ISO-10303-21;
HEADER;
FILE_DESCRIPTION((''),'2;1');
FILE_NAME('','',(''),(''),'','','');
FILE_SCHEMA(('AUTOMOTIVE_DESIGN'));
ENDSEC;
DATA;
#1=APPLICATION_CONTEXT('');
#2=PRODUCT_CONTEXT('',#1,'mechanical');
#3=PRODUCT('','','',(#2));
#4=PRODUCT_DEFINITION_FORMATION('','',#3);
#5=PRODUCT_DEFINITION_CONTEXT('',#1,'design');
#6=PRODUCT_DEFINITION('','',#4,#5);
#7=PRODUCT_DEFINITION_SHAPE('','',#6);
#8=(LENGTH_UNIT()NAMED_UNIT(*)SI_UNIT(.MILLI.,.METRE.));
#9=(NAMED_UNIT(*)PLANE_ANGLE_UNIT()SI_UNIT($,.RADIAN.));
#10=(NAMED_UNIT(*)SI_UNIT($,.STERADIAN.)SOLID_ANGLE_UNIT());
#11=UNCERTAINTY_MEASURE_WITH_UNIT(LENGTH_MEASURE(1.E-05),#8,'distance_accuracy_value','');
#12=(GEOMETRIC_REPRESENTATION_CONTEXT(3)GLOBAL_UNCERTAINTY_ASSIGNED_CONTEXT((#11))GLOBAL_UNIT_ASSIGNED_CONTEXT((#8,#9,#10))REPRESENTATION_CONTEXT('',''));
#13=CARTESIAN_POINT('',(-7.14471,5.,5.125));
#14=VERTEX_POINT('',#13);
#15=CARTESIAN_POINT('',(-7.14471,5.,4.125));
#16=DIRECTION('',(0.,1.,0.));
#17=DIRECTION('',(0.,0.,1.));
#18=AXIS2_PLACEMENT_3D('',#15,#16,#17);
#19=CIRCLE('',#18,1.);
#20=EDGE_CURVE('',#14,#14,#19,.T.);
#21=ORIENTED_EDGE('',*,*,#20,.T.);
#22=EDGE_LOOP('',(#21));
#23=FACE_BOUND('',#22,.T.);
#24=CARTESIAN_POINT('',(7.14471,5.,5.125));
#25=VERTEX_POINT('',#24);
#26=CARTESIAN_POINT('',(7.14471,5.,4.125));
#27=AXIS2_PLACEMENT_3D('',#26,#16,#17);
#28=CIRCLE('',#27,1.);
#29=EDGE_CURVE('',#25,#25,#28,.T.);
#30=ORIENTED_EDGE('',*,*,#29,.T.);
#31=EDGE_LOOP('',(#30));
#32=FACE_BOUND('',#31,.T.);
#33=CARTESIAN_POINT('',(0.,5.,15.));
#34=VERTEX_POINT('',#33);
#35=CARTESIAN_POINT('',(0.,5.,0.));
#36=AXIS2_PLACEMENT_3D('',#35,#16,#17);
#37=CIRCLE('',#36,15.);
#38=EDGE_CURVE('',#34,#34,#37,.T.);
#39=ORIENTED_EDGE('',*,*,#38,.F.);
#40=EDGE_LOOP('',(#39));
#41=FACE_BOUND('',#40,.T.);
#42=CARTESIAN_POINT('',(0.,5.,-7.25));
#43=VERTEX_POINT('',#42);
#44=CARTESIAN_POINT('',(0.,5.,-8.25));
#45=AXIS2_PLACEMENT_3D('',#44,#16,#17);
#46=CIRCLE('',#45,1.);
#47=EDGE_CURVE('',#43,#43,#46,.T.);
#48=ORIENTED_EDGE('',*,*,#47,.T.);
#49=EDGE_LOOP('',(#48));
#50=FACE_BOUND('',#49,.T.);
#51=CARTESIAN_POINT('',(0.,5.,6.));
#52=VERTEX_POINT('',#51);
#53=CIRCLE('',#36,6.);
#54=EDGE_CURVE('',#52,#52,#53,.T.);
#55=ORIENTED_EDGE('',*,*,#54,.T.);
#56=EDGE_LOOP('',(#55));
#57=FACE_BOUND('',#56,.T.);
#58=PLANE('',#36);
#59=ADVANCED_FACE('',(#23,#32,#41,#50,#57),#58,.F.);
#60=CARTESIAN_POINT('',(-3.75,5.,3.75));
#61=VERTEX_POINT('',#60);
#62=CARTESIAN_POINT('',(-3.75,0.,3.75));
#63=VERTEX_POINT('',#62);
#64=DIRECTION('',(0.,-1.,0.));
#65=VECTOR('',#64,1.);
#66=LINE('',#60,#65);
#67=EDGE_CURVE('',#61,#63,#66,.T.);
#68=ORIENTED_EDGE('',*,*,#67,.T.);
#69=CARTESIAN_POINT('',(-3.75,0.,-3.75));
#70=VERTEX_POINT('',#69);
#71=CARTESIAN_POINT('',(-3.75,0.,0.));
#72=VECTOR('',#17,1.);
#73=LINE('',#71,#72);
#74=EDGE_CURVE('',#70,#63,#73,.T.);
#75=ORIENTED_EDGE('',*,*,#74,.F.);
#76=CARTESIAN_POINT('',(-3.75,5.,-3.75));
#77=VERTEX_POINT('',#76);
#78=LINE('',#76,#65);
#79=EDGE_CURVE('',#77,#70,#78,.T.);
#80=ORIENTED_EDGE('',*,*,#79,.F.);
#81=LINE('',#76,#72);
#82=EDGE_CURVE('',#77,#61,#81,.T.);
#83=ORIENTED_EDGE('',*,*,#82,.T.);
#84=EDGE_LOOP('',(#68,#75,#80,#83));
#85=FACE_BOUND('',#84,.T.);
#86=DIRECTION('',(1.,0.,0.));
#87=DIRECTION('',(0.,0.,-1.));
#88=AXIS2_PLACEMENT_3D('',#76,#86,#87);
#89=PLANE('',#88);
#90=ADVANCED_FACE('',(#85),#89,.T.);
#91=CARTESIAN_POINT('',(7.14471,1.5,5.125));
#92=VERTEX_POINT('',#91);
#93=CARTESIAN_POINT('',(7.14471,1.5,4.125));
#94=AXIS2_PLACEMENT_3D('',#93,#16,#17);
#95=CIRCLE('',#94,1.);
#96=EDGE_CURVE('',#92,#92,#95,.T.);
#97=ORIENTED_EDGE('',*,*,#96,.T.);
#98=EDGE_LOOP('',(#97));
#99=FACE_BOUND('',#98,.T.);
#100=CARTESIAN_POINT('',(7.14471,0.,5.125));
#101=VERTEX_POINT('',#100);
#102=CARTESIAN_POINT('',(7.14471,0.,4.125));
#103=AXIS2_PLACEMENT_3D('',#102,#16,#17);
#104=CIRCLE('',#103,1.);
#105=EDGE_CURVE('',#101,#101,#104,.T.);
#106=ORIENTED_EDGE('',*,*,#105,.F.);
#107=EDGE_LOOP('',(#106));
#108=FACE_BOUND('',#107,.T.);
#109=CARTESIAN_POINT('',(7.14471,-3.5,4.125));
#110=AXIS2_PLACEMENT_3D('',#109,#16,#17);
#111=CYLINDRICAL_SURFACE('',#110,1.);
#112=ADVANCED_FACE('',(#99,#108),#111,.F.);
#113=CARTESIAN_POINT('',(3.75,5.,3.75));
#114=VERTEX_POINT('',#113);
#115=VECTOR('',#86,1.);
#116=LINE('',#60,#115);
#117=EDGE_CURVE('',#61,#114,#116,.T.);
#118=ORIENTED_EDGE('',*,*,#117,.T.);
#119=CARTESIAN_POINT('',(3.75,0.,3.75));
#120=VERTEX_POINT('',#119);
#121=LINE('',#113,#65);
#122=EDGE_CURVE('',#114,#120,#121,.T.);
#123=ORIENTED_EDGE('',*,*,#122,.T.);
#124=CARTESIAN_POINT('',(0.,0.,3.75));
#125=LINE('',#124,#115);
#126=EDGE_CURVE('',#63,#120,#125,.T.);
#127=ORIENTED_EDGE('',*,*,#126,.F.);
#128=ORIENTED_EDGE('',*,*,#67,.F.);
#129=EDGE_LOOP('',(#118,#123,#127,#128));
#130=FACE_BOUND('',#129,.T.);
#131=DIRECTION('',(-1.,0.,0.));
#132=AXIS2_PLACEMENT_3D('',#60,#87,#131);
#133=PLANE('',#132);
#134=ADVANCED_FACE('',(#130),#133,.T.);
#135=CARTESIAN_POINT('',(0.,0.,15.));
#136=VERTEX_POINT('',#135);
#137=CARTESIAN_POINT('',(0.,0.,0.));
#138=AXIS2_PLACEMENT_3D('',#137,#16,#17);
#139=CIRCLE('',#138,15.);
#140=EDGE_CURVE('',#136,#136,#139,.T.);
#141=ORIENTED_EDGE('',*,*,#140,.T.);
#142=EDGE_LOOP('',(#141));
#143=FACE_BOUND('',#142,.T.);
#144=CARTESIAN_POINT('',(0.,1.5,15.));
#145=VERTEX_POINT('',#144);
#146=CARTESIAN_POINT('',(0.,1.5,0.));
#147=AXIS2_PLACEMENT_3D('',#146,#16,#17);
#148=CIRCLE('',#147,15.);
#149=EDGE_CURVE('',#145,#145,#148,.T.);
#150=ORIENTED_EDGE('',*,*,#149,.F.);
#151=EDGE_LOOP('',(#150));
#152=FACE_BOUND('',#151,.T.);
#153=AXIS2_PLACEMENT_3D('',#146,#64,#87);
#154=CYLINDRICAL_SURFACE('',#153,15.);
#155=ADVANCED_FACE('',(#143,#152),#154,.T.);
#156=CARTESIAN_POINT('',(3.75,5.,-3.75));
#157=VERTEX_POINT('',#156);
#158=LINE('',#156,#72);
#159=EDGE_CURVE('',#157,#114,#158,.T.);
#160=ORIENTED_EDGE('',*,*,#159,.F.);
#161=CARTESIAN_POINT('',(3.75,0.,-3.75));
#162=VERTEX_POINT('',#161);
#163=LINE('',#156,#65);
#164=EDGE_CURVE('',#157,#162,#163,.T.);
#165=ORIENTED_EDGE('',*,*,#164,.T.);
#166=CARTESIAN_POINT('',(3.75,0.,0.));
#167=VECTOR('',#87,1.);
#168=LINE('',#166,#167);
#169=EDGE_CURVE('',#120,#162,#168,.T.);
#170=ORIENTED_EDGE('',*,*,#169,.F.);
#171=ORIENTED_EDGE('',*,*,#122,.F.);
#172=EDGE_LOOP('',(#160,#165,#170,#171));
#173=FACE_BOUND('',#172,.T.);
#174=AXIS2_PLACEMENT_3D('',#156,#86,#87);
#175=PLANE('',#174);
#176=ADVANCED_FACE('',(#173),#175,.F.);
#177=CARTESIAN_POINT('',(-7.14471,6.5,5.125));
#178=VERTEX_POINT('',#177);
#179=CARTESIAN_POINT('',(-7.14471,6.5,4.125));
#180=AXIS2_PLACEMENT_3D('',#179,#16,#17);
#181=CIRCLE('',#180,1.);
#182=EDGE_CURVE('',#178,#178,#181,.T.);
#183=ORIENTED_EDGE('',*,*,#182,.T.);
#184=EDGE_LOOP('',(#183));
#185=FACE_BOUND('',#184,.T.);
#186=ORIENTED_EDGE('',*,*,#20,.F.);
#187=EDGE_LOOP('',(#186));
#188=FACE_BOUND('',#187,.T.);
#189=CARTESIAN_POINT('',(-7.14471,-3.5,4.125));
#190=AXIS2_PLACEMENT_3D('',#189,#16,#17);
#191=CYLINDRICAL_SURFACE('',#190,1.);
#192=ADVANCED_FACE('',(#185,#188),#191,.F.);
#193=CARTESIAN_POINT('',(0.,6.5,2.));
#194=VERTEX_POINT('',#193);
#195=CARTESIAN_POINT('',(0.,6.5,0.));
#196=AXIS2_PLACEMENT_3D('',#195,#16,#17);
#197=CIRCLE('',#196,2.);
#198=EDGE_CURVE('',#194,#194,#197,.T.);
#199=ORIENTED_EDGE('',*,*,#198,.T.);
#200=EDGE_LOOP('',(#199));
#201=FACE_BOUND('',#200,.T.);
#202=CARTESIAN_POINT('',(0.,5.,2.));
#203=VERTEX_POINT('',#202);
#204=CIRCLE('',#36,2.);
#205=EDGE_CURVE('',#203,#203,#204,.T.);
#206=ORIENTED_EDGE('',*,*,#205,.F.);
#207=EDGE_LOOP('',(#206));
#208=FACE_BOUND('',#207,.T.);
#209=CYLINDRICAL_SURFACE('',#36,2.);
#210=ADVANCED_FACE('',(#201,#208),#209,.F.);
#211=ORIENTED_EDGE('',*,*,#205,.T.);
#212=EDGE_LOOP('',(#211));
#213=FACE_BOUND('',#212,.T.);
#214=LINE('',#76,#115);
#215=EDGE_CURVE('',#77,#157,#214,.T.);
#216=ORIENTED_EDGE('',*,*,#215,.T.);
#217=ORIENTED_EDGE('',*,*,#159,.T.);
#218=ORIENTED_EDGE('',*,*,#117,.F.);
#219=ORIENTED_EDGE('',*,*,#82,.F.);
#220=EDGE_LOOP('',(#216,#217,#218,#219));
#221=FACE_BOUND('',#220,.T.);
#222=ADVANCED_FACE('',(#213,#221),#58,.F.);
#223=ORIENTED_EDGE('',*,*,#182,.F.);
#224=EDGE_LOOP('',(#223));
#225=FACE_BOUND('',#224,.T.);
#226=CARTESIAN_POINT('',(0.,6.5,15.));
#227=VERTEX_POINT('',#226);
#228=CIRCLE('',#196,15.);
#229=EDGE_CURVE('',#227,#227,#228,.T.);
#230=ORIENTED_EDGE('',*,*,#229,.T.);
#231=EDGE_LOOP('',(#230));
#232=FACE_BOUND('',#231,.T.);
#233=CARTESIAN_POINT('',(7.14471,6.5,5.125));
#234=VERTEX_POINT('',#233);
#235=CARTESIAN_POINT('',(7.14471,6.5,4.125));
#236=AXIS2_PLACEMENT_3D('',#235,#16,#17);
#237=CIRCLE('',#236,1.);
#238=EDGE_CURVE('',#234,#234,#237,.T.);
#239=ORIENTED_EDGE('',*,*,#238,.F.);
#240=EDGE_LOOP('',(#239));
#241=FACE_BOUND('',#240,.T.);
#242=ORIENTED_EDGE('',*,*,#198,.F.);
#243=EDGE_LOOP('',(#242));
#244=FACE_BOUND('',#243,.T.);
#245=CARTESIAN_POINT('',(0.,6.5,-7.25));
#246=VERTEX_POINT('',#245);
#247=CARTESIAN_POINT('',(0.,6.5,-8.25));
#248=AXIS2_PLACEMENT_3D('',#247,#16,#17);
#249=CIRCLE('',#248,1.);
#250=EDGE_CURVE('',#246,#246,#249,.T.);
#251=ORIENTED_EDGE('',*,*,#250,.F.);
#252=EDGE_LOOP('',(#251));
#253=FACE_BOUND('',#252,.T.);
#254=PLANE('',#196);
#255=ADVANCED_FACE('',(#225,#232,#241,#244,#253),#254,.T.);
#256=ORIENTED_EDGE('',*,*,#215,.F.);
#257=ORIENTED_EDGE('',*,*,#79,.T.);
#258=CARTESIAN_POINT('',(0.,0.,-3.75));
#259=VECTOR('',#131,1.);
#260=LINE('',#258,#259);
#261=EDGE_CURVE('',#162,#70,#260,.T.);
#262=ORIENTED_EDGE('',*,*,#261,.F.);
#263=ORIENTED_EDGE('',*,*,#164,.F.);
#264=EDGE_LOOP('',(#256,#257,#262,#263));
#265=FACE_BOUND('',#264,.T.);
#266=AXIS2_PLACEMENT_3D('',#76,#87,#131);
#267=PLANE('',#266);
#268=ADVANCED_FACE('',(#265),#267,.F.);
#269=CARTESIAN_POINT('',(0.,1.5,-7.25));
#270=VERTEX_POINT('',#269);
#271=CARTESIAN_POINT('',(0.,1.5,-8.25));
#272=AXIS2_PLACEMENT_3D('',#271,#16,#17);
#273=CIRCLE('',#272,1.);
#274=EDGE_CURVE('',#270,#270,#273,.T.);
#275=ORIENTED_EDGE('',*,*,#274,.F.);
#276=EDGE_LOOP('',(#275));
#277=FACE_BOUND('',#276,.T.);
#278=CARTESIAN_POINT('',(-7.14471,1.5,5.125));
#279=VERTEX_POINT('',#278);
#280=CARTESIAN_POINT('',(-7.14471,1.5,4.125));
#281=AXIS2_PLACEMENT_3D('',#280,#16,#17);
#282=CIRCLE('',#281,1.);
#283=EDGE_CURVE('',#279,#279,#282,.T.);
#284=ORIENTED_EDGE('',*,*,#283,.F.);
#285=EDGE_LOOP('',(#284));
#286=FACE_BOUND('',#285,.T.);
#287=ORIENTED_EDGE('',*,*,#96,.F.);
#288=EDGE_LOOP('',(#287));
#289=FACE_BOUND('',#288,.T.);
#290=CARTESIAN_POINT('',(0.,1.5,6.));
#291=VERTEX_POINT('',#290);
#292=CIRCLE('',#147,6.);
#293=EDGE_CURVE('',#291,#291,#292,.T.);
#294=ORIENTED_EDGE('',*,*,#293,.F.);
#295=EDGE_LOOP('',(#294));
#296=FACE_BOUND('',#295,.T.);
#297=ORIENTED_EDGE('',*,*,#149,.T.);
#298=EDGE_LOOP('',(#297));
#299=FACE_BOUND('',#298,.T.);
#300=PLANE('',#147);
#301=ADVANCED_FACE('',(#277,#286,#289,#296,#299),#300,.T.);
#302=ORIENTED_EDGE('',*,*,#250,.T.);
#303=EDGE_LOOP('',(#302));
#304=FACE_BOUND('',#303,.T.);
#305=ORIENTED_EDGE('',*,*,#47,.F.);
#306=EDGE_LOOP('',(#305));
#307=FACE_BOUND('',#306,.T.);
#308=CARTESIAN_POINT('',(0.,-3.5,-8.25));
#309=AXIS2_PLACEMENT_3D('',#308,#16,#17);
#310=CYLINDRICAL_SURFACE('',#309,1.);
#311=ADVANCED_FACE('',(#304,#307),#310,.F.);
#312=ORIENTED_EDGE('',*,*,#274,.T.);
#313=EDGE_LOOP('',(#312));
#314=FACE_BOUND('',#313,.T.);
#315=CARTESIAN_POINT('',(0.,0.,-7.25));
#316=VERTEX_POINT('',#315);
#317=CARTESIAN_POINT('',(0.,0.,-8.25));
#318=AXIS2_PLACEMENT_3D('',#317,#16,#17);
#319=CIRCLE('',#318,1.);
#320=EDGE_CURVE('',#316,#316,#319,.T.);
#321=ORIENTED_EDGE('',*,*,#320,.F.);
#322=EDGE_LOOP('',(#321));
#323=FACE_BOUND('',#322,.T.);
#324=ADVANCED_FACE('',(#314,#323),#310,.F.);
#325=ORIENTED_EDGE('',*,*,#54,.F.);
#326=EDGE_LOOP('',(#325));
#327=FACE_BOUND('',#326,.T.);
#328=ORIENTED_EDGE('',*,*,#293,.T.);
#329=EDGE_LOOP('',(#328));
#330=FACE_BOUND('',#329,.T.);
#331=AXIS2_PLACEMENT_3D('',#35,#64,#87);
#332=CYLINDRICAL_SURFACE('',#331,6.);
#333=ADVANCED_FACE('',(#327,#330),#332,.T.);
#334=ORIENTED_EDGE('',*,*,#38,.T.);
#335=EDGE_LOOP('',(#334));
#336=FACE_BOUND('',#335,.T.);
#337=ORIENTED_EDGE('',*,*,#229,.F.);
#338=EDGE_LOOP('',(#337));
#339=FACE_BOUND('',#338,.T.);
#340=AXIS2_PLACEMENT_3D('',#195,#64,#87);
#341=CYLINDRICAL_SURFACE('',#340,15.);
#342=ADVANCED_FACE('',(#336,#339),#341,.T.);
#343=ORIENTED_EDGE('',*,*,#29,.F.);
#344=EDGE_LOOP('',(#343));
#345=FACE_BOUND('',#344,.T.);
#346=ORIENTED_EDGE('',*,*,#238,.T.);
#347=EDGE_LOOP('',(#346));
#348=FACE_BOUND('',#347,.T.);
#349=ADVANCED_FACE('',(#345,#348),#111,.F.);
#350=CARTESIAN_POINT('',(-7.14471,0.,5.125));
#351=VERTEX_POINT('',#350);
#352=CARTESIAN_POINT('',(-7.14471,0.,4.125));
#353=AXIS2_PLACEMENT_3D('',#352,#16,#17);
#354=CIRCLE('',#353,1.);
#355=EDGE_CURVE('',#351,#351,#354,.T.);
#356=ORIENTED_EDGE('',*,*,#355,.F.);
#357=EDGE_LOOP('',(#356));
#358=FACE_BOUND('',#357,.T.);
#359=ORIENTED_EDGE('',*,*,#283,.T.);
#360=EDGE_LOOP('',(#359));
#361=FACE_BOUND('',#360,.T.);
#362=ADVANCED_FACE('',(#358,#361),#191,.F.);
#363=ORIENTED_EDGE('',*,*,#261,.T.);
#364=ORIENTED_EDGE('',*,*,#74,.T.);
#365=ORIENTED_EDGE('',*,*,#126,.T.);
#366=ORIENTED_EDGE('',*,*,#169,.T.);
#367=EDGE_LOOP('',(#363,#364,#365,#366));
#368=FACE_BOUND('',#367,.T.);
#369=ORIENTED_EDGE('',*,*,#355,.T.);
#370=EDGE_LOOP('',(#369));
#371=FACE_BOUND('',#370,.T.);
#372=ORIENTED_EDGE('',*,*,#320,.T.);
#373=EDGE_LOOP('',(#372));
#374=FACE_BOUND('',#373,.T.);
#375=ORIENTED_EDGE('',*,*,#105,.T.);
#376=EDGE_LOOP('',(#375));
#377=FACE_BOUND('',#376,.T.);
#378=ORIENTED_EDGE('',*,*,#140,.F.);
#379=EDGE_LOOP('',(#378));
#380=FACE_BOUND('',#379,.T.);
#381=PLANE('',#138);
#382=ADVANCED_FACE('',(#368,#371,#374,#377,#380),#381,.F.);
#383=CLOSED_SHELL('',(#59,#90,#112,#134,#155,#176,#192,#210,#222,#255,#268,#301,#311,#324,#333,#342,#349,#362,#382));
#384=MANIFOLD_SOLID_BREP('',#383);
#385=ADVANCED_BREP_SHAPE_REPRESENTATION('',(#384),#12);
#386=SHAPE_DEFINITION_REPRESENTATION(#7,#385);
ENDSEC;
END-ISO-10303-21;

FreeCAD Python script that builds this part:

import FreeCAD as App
import Part
import Sketcher

doc = App.newDocument("Part")
body = doc.addObject("PartDesign::Body", "Body")

sketch1 = doc.addObject("Sketcher::SketchObject", "Sketch")
body.addObject(sketch1)
sketch1.AttachmentSupport = (doc.XZ_Plane, [""])
sketch1.MapMode = "FlatFace"
sketch1.addGeometry(Part.Circle(App.Vector(0, 0, 0), App.Vector(0, 0, 1), 15), False)
sketch1.addConstraint(Sketcher.Constraint("Coincident", 0, 3, -1, 1))
sketch1.addConstraint(Sketcher.Constraint("Diameter", 0, 30.0))
pad1 = doc.addObject("PartDesign::Pad", "Pad")
body.addObject(pad1)
pad1.Profile = sketch1
pad1.Length = 1.5
pad1.Reversed = True

sketch2 = doc.addObject("Sketcher::SketchObject", "Sketch001")
body.addObject(sketch2)
sketch2.AttachmentSupport = (doc.XZ_Plane, [""])
sketch2.MapMode = "FlatFace"
sketch2.AttachmentOffset = App.Placement(App.Vector(0, 0, -1.5), App.Rotation())
sketch2.addGeometry(Part.Circle(App.Vector(0, 0, 0), App.Vector(0, 0, 1), 6), False)
sketch2.addGeometry(Part.LineSegment(App.Vector(4, 4, 0), App.Vector(-4, 4, 0)), False)
sketch2.addGeometry(Part.LineSegment(App.Vector(-4, 4, 0), App.Vector(-4, -4, 0)), False)
sketch2.addGeometry(Part.LineSegment(App.Vector(-4, -4, 0), App.Vector(4, -4, 0)), False)
sketch2.addGeometry(Part.LineSegment(App.Vector(4, -4, 0), App.Vector(4, 4, 0)), False)
sketch2.addConstraint(Sketcher.Constraint("Coincident", 1, 2, 2, 1))
sketch2.addConstraint(Sketcher.Constraint("Coincident", 2, 2, 3, 1))
sketch2.addConstraint(Sketcher.Constraint("Coincident", 3, 2, 4, 1))
sketch2.addConstraint(Sketcher.Constraint("Coincident", 4, 2, 1, 1))
sketch2.addConstraint(Sketcher.Constraint("Horizontal", 1))
sketch2.addConstraint(Sketcher.Constraint("Vertical", 2))
sketch2.addConstraint(Sketcher.Constraint("Horizontal", 3))
sketch2.addConstraint(Sketcher.Constraint("Vertical", 4))
sketch2.addConstraint(Sketcher.Constraint("Coincident", 0, 3, -1, 1))
sketch2.addConstraint(Sketcher.Constraint("Symmetric", 1, 2, 3, 2, -1, 1))
sketch2.addConstraint(Sketcher.Constraint("Equal", 3, 2))
sketch2.addConstraint(Sketcher.Constraint("Diameter", 0, 12.0))
sketch2.addConstraint(Sketcher.Constraint("DistanceX", 1, 2, 1, 1, 7.5))
pad2 = doc.addObject("PartDesign::Pad", "Pad001")
body.addObject(pad2)
pad2.Profile = sketch2
pad2.Length = 3.5
pad2.Reversed = True

sketch3 = doc.addObject("Sketcher::SketchObject", "Sketch002")
body.addObject(sketch3)
sketch3.AttachmentSupport = (doc.XZ_Plane, [""])
sketch3.MapMode = "FlatFace"
sketch3.AttachmentOffset = App.Placement(App.Vector(0, 0, -1.5), App.Rotation())
sketch3.addGeometry(Part.LineSegment(App.Vector(-4, -4, 0), App.Vector(-4, 4, 0)), False)
sketch3.addGeometry(Part.LineSegment(App.Vector(-4, 4, 0), App.Vector(4, 4, 0)), False)
sketch3.addGeometry(Part.LineSegment(App.Vector(4, 4, 0), App.Vector(4, -4, 0)), False)
sketch3.addGeometry(Part.LineSegment(App.Vector(4, -4, 0), App.Vector(-4, -4, 0)), False)
sketch3.addConstraint(Sketcher.Constraint("Coincident", 0, 2, 1, 1))
sketch3.addConstraint(Sketcher.Constraint("Coincident", 1, 2, 2, 1))
sketch3.addConstraint(Sketcher.Constraint("Coincident", 2, 2, 3, 1))
sketch3.addConstraint(Sketcher.Constraint("Coincident", 3, 2, 0, 1))
sketch3.addConstraint(Sketcher.Constraint("Vertical", 0))
sketch3.addConstraint(Sketcher.Constraint("Horizontal", 1))
sketch3.addConstraint(Sketcher.Constraint("Vertical", 2))
sketch3.addConstraint(Sketcher.Constraint("Horizontal", 3))
sketch3.addConstraint(Sketcher.Constraint("Symmetric", 0, 2, 2, 2, -1, 1))
sketch3.addConstraint(Sketcher.Constraint("Equal", 3, 0))
sketch3.addConstraint(Sketcher.Constraint("DistanceX", 1, 1, 1, 2, 7.5))
pocket1 = doc.addObject("PartDesign::Pocket", "Pocket")
body.addObject(pocket1)
pocket1.Profile = sketch3
pocket1.Length = 3.5
pocket1.Reversed = True

sketch4 = doc.addObject("Sketcher::SketchObject", "Sketch003")
body.addObject(sketch4)
sketch4.AttachmentSupport = (doc.XZ_Plane, [""])
sketch4.MapMode = "FlatFace"
sketch4.AttachmentOffset = App.Placement(App.Vector(0, 0, -5), App.Rotation())
sketch4.addGeometry(Part.Circle(App.Vector(0, 0, 0), App.Vector(0, 0, 1), 15), False)
sketch4.addConstraint(Sketcher.Constraint("Coincident", 0, 3, -1, 1))
sketch4.addConstraint(Sketcher.Constraint("Diameter", 0, 30.0))
pad3 = doc.addObject("PartDesign::Pad", "Pad002")
body.addObject(pad3)
pad3.Profile = sketch4
pad3.Length = 1.5
pad3.Reversed = True

sketch5 = doc.addObject("Sketcher::SketchObject", "Sketch004")
body.addObject(sketch5)
sketch5.AttachmentSupport = (doc.XZ_Plane, [""])
sketch5.MapMode = "FlatFace"
sketch5.AttachmentOffset = App.Placement(App.Vector(0, 0, -6.5), App.Rotation())
sketch5.addGeometry(Part.Circle(App.Vector(0, 0, 0), App.Vector(0, 0, 1), 2), False)
sketch5.addConstraint(Sketcher.Constraint("Coincident", 0, 3, -1, 1))
sketch5.addConstraint(Sketcher.Constraint("Diameter", 0, 4.0))
pocket2 = doc.addObject("PartDesign::Pocket", "Pocket001")
body.addObject(pocket2)
pocket2.Profile = sketch5
pocket2.Length = 1.5
pocket2.Reversed = True

sketch6 = doc.addObject("Sketcher::SketchObject", "Sketch005")
body.addObject(sketch6)
sketch6.AttachmentSupport = (doc.XZ_Plane, [""])
sketch6.MapMode = "FlatFace"
sketch6.AttachmentOffset = App.Placement(App.Vector(0, 0, -6.5), App.Rotation())
sketch6.addGeometry(Part.Circle(App.Vector(0, -8.2, 0), App.Vector(0, 0, 1), 1), False)
sketch6.addGeometry(Part.Circle(App.Vector(-7.1, 4.1, 0), App.Vector(0, 0, 1), 1), False)
sketch6.addGeometry(Part.Circle(App.Vector(7.1, 4.1, 0), App.Vector(0, 0, 1), 1), False)
sketch6.addConstraint(Sketcher.Constraint("Equal", 0, 1))
sketch6.addConstraint(Sketcher.Constraint("Equal", 1, 2))
sketch6.addConstraint(Sketcher.Constraint("Symmetric", 1, 3, 2, 3, -2))
sketch6.addConstraint(Sketcher.Constraint("PointOnObject", 0, 3, -2))
sketch6.addConstraint(Sketcher.Constraint("Diameter", 0, 2.0))
sketch6.addConstraint(Sketcher.Constraint("DistanceY", 0, 3, -1, 1, 8.25))
sketch6.addConstraint(Sketcher.Constraint("DistanceY", -1, 1, 1, 3, 4.125))
sketch6.addConstraint(Sketcher.Constraint("DistanceX", 1, 3, -1, 1, 7.14471))
pocket3 = doc.addObject("PartDesign::Pocket", "Pocket002")
body.addObject(pocket3)
pocket3.Profile = sketch6
pocket3.Length = 10
pocket3.Reversed = True

doc.recompute()
